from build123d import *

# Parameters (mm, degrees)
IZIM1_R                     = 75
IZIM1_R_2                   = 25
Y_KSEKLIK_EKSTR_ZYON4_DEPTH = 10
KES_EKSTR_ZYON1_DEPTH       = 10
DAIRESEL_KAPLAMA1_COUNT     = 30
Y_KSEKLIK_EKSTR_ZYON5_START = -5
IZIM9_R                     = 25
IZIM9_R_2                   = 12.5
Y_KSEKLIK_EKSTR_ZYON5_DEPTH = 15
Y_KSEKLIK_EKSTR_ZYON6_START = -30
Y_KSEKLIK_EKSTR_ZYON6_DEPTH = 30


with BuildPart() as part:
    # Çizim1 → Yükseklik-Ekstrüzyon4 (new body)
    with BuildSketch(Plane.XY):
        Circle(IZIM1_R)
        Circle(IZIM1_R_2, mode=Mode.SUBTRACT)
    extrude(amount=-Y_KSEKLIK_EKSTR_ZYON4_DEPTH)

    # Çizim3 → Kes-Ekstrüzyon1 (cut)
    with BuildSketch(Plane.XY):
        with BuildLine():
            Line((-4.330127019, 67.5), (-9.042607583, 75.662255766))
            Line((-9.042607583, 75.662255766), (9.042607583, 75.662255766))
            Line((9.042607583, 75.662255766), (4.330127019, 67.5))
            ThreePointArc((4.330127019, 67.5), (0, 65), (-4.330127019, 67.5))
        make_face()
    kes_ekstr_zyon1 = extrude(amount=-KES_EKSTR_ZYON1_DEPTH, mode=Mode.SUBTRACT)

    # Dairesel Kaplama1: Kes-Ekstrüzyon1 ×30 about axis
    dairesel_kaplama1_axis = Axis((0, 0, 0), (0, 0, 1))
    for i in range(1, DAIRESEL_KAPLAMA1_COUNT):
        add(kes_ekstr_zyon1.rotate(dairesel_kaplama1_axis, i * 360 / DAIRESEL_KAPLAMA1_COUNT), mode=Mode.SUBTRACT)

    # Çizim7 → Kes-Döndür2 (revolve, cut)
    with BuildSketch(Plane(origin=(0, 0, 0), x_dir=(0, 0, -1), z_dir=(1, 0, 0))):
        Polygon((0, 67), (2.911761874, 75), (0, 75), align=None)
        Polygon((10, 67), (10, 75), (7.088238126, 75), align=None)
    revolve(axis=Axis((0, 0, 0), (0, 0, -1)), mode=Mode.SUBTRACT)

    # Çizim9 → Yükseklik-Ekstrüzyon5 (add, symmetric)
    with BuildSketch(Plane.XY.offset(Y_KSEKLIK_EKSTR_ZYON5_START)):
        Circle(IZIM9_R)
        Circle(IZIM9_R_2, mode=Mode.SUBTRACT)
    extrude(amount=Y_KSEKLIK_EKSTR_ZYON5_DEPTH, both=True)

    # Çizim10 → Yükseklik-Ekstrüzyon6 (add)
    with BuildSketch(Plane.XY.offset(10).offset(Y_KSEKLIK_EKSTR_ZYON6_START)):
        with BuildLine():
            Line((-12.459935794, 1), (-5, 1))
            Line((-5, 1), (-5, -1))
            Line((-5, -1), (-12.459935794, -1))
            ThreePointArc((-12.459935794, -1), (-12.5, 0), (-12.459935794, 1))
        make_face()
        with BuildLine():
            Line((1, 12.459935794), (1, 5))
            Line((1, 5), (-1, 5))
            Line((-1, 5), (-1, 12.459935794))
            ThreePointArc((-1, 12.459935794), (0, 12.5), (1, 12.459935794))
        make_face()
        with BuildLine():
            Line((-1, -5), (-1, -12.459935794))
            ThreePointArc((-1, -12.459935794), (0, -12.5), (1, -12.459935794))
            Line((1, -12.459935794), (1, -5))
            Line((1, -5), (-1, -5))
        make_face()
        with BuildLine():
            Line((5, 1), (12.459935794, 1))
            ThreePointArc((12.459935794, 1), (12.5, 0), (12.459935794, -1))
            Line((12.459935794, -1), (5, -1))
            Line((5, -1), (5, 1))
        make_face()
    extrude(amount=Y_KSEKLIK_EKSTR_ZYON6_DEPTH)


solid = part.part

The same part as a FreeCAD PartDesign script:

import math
import FreeCAD as App
import Part
import Sketcher

V = App.Vector
Q = App.Units.Quantity


def add_polygon(sketch, points):
    """Adds a closed chain of lines whose ends are joined by coincident constraints."""
    first, n = sketch.GeometryCount, len(points)
    for a, b in zip(points, points[1:] + points[:1]):
        sketch.addGeometry(Part.LineSegment(App.Vector(*a, 0), App.Vector(*b, 0)), False)
    for i in range(n):
        sketch.addConstraint(Sketcher.Constraint("Coincident", first + i, 2, first + (i + 1) % n, 1))

doc = App.newDocument("Part")
body = doc.addObject("PartDesign::Body", "Body")

# Sketch on XY plane
sketch1 = doc.addObject("Sketcher::SketchObject", "Sketch")
body.addObject(sketch1)
sketch1.AttachmentSupport = (doc.XY_Plane, [""])
sketch1.MapMode = "FlatFace"
sketch1.addGeometry([
    Part.Circle(V(0, 0, 0), V(0, 0, 1), 75),
    Part.Circle(V(0, 0, 0), V(0, 0, 1), 25),
], False)
sketch1.addConstraint([
    Sketcher.Constraint("Coincident", 0, 3, -1, 1),
    Sketcher.Constraint("Coincident", 1, 3, -1, 1),
    Sketcher.Constraint("Diameter", 0, 150.0),
    Sketcher.Constraint("Diameter", 1, 50.0),
])
pad1 = doc.addObject("PartDesign::Pad", "Pad")
body.addObject(pad1)
pad1.Profile = sketch1
pad1.Length = 10
pad1.Reversed = True

# Sketch on XY plane
sketch2 = doc.addObject("Sketcher::SketchObject", "Sketch001")
body.addObject(sketch2)
sketch2.AttachmentSupport = (doc.XY_Plane, [""])
sketch2.MapMode = "FlatFace"
sketch2.addGeometry([
    Part.LineSegment(V(-9.042608, 75.662256, 0), V(-4.330127, 67.5, 0)),
    Part.ArcOfCircle(Part.Circle(V(0, 70, 0), V(0, 0, 1), 5), math.radians(-150), math.radians(-30)),
    Part.LineSegment(V(4.330127, 67.5, 0), V(9.042608, 75.662256, 0)),
    Part.LineSegment(V(9.042608, 75.662256, 0), V(-9.042608, 75.662256, 0)),
], False)
sketch2.addConstraint([
    Sketcher.Constraint("Tangent", 0, 2, 1, 1),
    Sketcher.Constraint("Tangent", 1, 2, 2, 1),
    Sketcher.Constraint("Coincident", 2, 2, 3, 1),
    Sketcher.Constraint("Coincident", 3, 2, 0, 1),
    Sketcher.Constraint("Horizontal", 3),
    Sketcher.Constraint("Symmetric", 0, 2, 1, 2, -2),
    Sketcher.Constraint("Radius", 1, 5.0),
    Sketcher.Constraint("Angle", 0, Q("-60 deg")),
    Sketcher.Constraint("DistanceY", -1, 1, 1, 3, 70.0),
    Sketcher.Constraint("Distance", 0, 9.424961),
])
pocket1 = doc.addObject("PartDesign::Pocket", "Pocket")
body.addObject(pocket1)
pocket1.Profile = sketch2
pocket1.Length = 10
doc.recompute()

polarpattern = doc.addObject("PartDesign::PolarPattern", "PolarPattern")
body.addObject(polarpattern)
polarpattern.Originals = [pocket1]
polarpattern.Axis = (doc.Z_Axis, [""])
polarpattern.Angle = 360
polarpattern.Occurrences = 30
body.Tip = polarpattern

# Sketch on YZ plane
sketch3 = doc.addObject("Sketcher::SketchObject", "Sketch002")
body.addObject(sketch3)
sketch3.AttachmentSupport = (doc.YZ_Plane, [""])
sketch3.MapMode = "FlatFace"
add_polygon(sketch3, [(67, 0), (75, -2.911762), (75, 0)])  # lines 0-2
add_polygon(sketch3, [(67, -10), (75, -10), (75, -7.088238)])  # lines 3-5
sketch3.addConstraint([
    Sketcher.Constraint("Vertical", 1),
    Sketcher.Constraint("Horizontal", 2),
    Sketcher.Constraint("Horizontal", 3),
    Sketcher.Constraint("Vertical", 4),
    Sketcher.Constraint("PointOnObject", 1, 2, -1),
    Sketcher.Constraint("Vertical", 1, 2, 3, 2),
    Sketcher.Constraint("Vertical", 2, 2, 5, 2),
    Sketcher.Constraint("Equal", 1, 4),
    Sketcher.Constraint("DistanceX", 2, 2, 2, 1, 8.0),
    Sketcher.Constraint("Angle", 0, Q("-20 deg")),
    Sketcher.Constraint("DistanceX", -1, 1, 0, 2, 75.0),
    Sketcher.Constraint("DistanceY", 3, 2, -1, 1, 10.0),
])
groove = doc.addObject("PartDesign::Groove", "Groove")
body.addObject(groove)
groove.Profile = sketch3
groove.ReferenceAxis = (sketch3, ["V_Axis"])
groove.Angle = 360

# Sketch on XY plane
sketch4 = doc.addObject("Sketcher::SketchObject", "Sketch003")
body.addObject(sketch4)
sketch4.AttachmentSupport = (doc.XY_Plane, [""])
sketch4.MapMode = "FlatFace"
sketch4.AttachmentOffset = App.Placement(V(0, 0, -5), App.Rotation())
sketch4.addGeometry([
    Part.Circle(V(0, 0, 0), V(0, 0, 1), 25),
    Part.Circle(V(0, 0, 0), V(0, 0, 1), 12.5),
], False)
sketch4.addConstraint([
    Sketcher.Constraint("Coincident", 0, 3, -1, 1),
    Sketcher.Constraint("Coincident", 1, 3, -1, 1),
    Sketcher.Constraint("Diameter", 0, 50.0),
    Sketcher.Constraint("Diameter", 1, 25.0),
])
pad2 = doc.addObject("PartDesign::Pad", "Pad001")
body.addObject(pad2)
pad2.Profile = sketch4
pad2.Length = 30
pad2.Midplane = True

# Sketch on XY plane
sketch5 = doc.addObject("Sketcher::SketchObject", "Sketch004")
body.addObject(sketch5)
sketch5.AttachmentSupport = (doc.XY_Plane, [""])
sketch5.MapMode = "FlatFace"
sketch5.AttachmentOffset = App.Placement(V(0, 0, -20), App.Rotation())
sketch5.addGeometry([
    Part.LineSegment(V(-5, 1, 0), V(-12.459936, 1, 0)),  # 0
    Part.ArcOfCircle(Part.Circle(V(0, 0, 0), V(0, 0, 1), 12.5), math.radians(175.411434), math.radians(184.588566)),  # 1
    Part.LineSegment(V(-12.459936, -1, 0), V(-5, -1, 0)),  # 2
    Part.LineSegment(V(-5, -1, 0), V(-5, 1, 0)),  # 3
    Part.LineSegment(V(1, 5, 0), V(1, 12.459936, 0)),  # 4
    Part.ArcOfCircle(Part.Circle(V(0, 0, 0), V(0, 0, 1), 12.5), math.radians(85.411434), math.radians(94.588566)),  # 5
    Part.LineSegment(V(-1, 12.459936, 0), V(-1, 5, 0)),  # 6
    Part.LineSegment(V(-1, 5, 0), V(1, 5, 0)),  # 7
    Part.LineSegment(V(-1, -5, 0), V(-1, -12.459936, 0)),  # 8
    Part.ArcOfCircle(Part.Circle(V(0, 0, 0), V(0, 0, 1), 12.5), math.radians(-94.588566), math.radians(-85.411434)),  # 9
    Part.LineSegment(V(1, -12.459936, 0), V(1, -5, 0)),  # 10
    Part.LineSegment(V(1, -5, 0), V(-1, -5, 0)),  # 11
    Part.LineSegment(V(12.459936, 1, 0), V(5, 1, 0)),  # 12
    Part.LineSegment(V(5, 1, 0), V(5, -1, 0)),  # 13
    Part.LineSegment(V(5, -1, 0), V(12.459936, -1, 0)),  # 14
    Part.ArcOfCircle(Part.Circle(V(0, 0, 0), V(0, 0, 1), 12.5), math.radians(-4.588566), math.radians(4.588566)),  # 15
], False)
sketch5.addConstraint([
    Sketcher.Constraint("Coincident", 0, 2, 1, 1),
    Sketcher.Constraint("Coincident", 1, 2, 2, 1),
    Sketcher.Constraint("Coincident", 2, 2, 3, 1),
    Sketcher.Constraint("Coincident", 3, 2, 0, 1),
    Sketcher.Constraint("Coincident", 4, 2, 5, 1),
    Sketcher.Constraint("Coincident", 5, 2, 6, 1),
    Sketcher.Constraint("Coincident", 6, 2, 7, 1),
    Sketcher.Constraint("Coincident", 7, 2, 4, 1),
    Sketcher.Constraint("Coincident", 8, 2, 9, 1),
    Sketcher.Constraint("Coincident", 9, 2, 10, 1),
    Sketcher.Constraint("Coincident", 10, 2, 11, 1),
    Sketcher.Constraint("Coincident", 11, 2, 8, 1),
    Sketcher.Constraint("Coincident", 12, 2, 13, 1),
    Sketcher.Constraint("Coincident", 13, 2, 14, 1),
    Sketcher.Constraint("Coincident", 14, 2, 15, 1),
    Sketcher.Constraint("Coincident", 15, 2, 12, 1),
    Sketcher.Constraint("Horizontal", 0),
    Sketcher.Constraint("Horizontal", 2),
    Sketcher.Constraint("Vertical", 3),
    Sketcher.Constraint("Vertical", 4),
    Sketcher.Constraint("Vertical", 6),
    Sketcher.Constraint("Horizontal", 7),
    Sketcher.Constraint("Vertical", 8),
    Sketcher.Constraint("Vertical", 10),
    Sketcher.Constraint("Horizontal", 11),
    Sketcher.Constraint("Horizontal", 12),
    Sketcher.Constraint("Vertical", 13),
    Sketcher.Constraint("Horizontal", 14),
    Sketcher.Constraint("Coincident", 1, 3, -1, 1),
    Sketcher.Constraint("Coincident", 5, 3, -1, 1),
    Sketcher.Constraint("Coincident", 9, 3, -1, 1),
    Sketcher.Constraint("Coincident", 15, 3, -1, 1),
    Sketcher.Constraint("Equal", 1, 5),
    Sketcher.Constraint("Equal", 5, 9),
    Sketcher.Constraint("Equal", 9, 15),
    Sketcher.Constraint("Symmetric", 6, 2, 10, 2, -1, 1),
    Sketcher.Constraint("Symmetric", 2, 2, 12, 2, -1, 1),
    Sketcher.Constraint("Horizontal", 4, 2, 5, 2),
    Sketcher.Constraint("Horizontal", 8, 2, 9, 2),
    Sketcher.Constraint("Horizontal", 3, 2, 12, 2),
    Sketcher.Constraint("Horizontal", 2, 2, 13, 2),
    Sketcher.Constraint("Equal", 11, 3),
    Sketcher.Constraint("Equal", 14, 4),
    Sketcher.Constraint("Radius", 1, 12.5),
    Sketcher.Constraint("DistanceX", 7, 1, 7, 2, 2.0),
    Sketcher.Constraint("DistanceX", 2, 2, -1, 1, 5.0),
])
pad3 = doc.addObject("PartDesign::Pad", "Pad002")
body.addObject(pad3)
pad3.Profile = sketch5
pad3.Length = 30

doc.recompute()
